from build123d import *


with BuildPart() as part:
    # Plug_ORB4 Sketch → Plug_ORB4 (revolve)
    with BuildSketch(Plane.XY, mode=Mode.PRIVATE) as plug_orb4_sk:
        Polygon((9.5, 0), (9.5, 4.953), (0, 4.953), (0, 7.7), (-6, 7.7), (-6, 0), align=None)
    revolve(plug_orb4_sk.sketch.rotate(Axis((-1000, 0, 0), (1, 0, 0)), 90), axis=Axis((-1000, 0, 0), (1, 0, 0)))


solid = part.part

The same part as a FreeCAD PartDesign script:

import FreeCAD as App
import Part
import Sketcher

V = App.Vector


def add_polygon(sketch, points):
    """Adds a closed chain of lines whose ends are joined by coincident constraints."""
    first, n = sketch.GeometryCount, len(points)
    for a, b in zip(points, points[1:] + points[:1]):
        sketch.addGeometry(Part.LineSegment(App.Vector(*a, 0), App.Vector(*b, 0)), False)
    for i in range(n):
        sketch.addConstraint(Sketcher.Constraint("Coincident", first + i, 2, first + (i + 1) % n, 1))

doc = App.newDocument("Part")
body = doc.addObject("PartDesign::Body", "Body")

sketch1 = body.newObject("Sketcher::SketchObject", "Sketch")
sketch1.AttachmentSupport = (doc.getObject("XY_Plane"), [""])
sketch1.MapMode = "FlatFace"
add_polygon(sketch1, [(9.5, 0), (9.5, 5), (0, 5), (0, 7.7), (-6, 7.7), (-6, 0)])
sketch1.addConstraint([
    Sketcher.Constraint("Vertical", 0),
    Sketcher.Constraint("Horizontal", 1),
    Sketcher.Constraint("Vertical", 2),
    Sketcher.Constraint("Horizontal", 3),
    Sketcher.Constraint("Vertical", 4),
    Sketcher.Constraint("Horizontal", 5),
    Sketcher.Constraint("PointOnObject", 1, 2, -2),
    Sketcher.Constraint("PointOnObject", 4, 2, -1),
    Sketcher.Constraint("DistanceX", 3, 2, 3, 1, 6.0),
    Sketcher.Constraint("DistanceX", 1, 2, 1, 1, 9.5),
    Sketcher.Constraint("DistanceY", 4, 2, 4, 1, 7.7),
    Sketcher.Constraint("DistanceY", 0, 1, 0, 2, 4.953),
])
revolution = body.newObject("PartDesign::Revolution", "Revolution")
revolution.Profile = sketch1
revolution.ReferenceAxis = (sketch1, ["H_Axis"])
revolution.Angle = 360

doc.recompute()
